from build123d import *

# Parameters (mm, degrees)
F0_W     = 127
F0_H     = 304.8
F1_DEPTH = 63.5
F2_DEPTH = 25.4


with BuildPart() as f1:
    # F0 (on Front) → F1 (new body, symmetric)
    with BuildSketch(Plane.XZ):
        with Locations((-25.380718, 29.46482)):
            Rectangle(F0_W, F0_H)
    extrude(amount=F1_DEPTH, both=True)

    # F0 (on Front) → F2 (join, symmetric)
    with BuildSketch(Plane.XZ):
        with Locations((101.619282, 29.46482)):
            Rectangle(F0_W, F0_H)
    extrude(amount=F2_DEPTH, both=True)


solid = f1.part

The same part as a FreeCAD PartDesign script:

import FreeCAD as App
import Part
import Sketcher
from FreeCAD import Vector
Q = App.Units.Quantity


def add_polygon(sketch, points):
    """Adds a closed chain of lines whose ends are joined by coincident constraints."""
    first, n = sketch.GeometryCount, len(points)
    for a, b in zip(points, points[1:] + points[:1]):
        sketch.addGeometry(Part.LineSegment(App.Vector(*a, 0), App.Vector(*b, 0)), False)
    for i in range(n):
        sketch.addConstraint(Sketcher.Constraint("Coincident", first + i, 2, first + (i + 1) % n, 1))

doc = App.newDocument("Part")
body = doc.addObject("PartDesign::Body", "Body")

# Sketch on XZ plane
sketch1 = body.newObject("Sketcher::SketchObject", "Sketch")
sketch1.AttachmentSupport = (doc.getObject("XZ_Plane"), [""])
sketch1.MapMode = "FlatFace"
add_polygon(sketch1, [(-88.880718, 181.86482), (-88.880718, -122.93518), (38.119282, -122.93518), (38.119282, 181.86482)])  # lines 0-3
sketch1.addConstraint(Sketcher.Constraint("Vertical", 0))
sketch1.addConstraint(Sketcher.Constraint("Horizontal", 1))
sketch1.addConstraint(Sketcher.Constraint("Vertical", 2))
sketch1.addConstraint(Sketcher.Constraint("Horizontal", 3))
sketch1.addConstraint(Sketcher.Constraint("DistanceX", 1, 1, 1, 2, Q("5 in")))
sketch1.addConstraint(Sketcher.Constraint("DistanceY", 0, 2, 0, 1, Q("12 in")))
sketch1.addConstraint(Sketcher.Constraint("DistanceX", 0, 2, -1, 1, Q("88.880718 mm")))
sketch1.addConstraint(Sketcher.Constraint("DistanceY", 0, 2, -1, 1, Q("122.93518 mm")))
pad1 = body.newObject("PartDesign::Pad", "Pad")
pad1.Profile = sketch1
pad1.Length = Q("5 in")
pad1.Midplane = True

# Sketch on XZ plane
sketch2 = body.newObject("Sketcher::SketchObject", "Sketch001")
sketch2.AttachmentSupport = (doc.getObject("XZ_Plane"), [""])
sketch2.MapMode = "FlatFace"
add_polygon(sketch2, [(38.119282, 181.86482), (38.119282, -122.93518), (165.119282, -122.93518), (165.119282, 181.86482)])  # lines 0-3
sketch2.addConstraint(Sketcher.Constraint("Vertical", 0))
sketch2.addConstraint(Sketcher.Constraint("Horizontal", 1))
sketch2.addConstraint(Sketcher.Constraint("Vertical", 2))
sketch2.addConstraint(Sketcher.Constraint("Horizontal", 3))
sketch2.addConstraint(Sketcher.Constraint("DistanceX", 1, 1, 1, 2, Q("5 in")))
sketch2.addConstraint(Sketcher.Constraint("DistanceY", 0, 2, 0, 1, Q("12 in")))
sketch2.addConstraint(Sketcher.Constraint("DistanceX", -1, 1, 0, 2, Q("38.119282 mm")))
sketch2.addConstraint(Sketcher.Constraint("DistanceY", 0, 2, -1, 1, Q("122.93518 mm")))
pad2 = body.newObject("PartDesign::Pad", "Pad001")
pad2.Profile = sketch2
pad2.Length = Q("2 in")
pad2.Midplane = True

doc.recompute()
